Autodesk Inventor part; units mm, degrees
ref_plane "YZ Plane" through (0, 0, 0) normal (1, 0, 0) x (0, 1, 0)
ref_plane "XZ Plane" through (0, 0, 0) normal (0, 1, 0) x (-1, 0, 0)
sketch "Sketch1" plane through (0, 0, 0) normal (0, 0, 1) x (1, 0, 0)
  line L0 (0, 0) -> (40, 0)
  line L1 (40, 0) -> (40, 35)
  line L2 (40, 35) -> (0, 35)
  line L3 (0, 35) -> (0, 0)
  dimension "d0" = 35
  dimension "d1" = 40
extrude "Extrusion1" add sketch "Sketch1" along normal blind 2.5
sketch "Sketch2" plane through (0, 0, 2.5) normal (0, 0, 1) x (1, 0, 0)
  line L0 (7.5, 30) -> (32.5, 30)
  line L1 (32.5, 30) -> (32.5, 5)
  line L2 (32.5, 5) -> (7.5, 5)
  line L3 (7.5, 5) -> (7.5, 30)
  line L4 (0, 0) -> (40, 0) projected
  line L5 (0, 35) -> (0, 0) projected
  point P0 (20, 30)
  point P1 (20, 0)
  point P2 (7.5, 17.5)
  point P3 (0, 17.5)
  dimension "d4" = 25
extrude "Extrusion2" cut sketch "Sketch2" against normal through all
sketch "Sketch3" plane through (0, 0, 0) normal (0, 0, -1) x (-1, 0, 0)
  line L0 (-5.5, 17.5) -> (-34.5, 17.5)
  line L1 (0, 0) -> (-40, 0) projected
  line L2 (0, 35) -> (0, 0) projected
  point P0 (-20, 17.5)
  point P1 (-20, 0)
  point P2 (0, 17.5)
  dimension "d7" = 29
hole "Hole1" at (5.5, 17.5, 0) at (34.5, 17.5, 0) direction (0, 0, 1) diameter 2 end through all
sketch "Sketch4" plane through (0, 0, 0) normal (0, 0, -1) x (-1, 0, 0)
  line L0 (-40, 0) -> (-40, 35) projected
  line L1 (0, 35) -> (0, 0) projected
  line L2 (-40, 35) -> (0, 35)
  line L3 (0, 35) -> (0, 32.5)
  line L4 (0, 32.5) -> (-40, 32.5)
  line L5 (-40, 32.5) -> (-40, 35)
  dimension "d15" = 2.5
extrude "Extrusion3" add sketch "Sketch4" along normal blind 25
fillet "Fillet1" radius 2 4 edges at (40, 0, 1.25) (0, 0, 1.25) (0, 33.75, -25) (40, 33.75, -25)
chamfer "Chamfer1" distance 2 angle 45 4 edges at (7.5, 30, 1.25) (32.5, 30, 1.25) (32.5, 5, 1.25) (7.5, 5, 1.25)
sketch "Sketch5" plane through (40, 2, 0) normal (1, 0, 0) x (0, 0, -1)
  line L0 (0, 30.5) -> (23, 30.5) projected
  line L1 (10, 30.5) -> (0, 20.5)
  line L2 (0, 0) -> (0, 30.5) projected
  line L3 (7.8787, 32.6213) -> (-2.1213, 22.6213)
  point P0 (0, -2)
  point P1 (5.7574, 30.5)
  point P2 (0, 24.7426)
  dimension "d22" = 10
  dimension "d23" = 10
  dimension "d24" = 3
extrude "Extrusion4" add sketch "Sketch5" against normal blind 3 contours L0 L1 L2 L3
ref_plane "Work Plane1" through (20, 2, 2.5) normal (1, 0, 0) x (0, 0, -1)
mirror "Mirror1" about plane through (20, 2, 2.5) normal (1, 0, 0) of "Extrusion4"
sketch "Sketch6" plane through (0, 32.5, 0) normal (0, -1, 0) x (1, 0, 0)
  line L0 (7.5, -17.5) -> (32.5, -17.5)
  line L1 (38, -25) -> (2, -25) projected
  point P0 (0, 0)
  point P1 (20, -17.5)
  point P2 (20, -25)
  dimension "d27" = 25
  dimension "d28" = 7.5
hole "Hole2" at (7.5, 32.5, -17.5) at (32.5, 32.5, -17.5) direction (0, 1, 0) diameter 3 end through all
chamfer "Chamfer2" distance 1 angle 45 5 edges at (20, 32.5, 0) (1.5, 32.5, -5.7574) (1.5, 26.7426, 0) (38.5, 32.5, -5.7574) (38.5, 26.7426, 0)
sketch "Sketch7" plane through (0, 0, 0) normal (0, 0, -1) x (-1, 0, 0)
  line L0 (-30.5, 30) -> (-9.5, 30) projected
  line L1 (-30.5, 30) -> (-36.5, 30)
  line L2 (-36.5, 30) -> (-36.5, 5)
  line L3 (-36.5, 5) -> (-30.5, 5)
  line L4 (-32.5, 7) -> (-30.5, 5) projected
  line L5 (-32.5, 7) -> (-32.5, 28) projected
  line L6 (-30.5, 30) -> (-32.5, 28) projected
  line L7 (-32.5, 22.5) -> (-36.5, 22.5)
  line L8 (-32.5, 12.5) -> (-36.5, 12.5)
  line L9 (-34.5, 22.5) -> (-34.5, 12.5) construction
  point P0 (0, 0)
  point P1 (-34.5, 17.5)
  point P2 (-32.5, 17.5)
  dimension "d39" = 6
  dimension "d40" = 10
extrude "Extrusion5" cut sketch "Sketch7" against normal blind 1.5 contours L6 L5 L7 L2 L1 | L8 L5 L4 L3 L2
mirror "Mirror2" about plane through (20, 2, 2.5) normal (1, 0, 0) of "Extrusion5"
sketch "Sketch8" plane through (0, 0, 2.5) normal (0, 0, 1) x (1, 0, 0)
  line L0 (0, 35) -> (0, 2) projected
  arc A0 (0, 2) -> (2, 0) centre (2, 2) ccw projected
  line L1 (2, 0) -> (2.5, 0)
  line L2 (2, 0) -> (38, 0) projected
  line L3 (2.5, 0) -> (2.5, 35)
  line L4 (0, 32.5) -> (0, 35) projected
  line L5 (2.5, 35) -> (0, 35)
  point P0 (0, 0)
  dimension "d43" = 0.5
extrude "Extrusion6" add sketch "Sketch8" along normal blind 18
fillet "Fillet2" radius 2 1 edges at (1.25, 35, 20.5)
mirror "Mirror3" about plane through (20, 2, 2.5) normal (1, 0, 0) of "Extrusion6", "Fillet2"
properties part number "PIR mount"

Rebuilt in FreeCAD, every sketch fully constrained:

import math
import FreeCAD as App
import Part
import Sketcher

V = App.Vector


def edges_at(feature, points):
    """Names of the edges that pass closest to the given points."""
    edges = feature.Shape.Edges
    near = lambda p: min(range(len(edges)), key=lambda i: edges[i].distToShape(Part.Vertex(*p))[0])
    return sorted({f"Edge{near(p) + 1}" for p in points})


def add_polygon(sketch, points):
    """Adds a closed chain of lines whose ends are joined by coincident constraints."""
    first, n = sketch.GeometryCount, len(points)
    for a, b in zip(points, points[1:] + points[:1]):
        sketch.addGeometry(Part.LineSegment(App.Vector(*a, 0), App.Vector(*b, 0)), False)
    for i in range(n):
        sketch.addConstraint(Sketcher.Constraint("Coincident", first + i, 2, first + (i + 1) % n, 1))

doc = App.newDocument("Part")
body = doc.addObject("PartDesign::Body", "Body")

sketch1 = body.newObject("Sketcher::SketchObject", "Sketch")
sketch1.AttachmentSupport = (doc.getObject("XY_Plane"), [""])
sketch1.MapMode = "FlatFace"
add_polygon(sketch1, [(0, 35), (0, 0), (40, 0), (40, 35)])
sketch1.addConstraint(Sketcher.Constraint("Vertical", 0))
sketch1.addConstraint(Sketcher.Constraint("Horizontal", 1))
sketch1.addConstraint(Sketcher.Constraint("Vertical", 2))
sketch1.addConstraint(Sketcher.Constraint("Horizontal", 3))
sketch1.addConstraint(Sketcher.Constraint("Coincident", 0, 2, -1, 1))
sketch1.addConstraint(Sketcher.Constraint("DistanceX", 1, 1, 1, 2, 40.0))
sketch1.addConstraint(Sketcher.Constraint("DistanceY", 0, 2, 0, 1, 35.0))
pad1 = body.newObject("PartDesign::Pad", "Pad")
pad1.Profile = sketch1
pad1.Length = 2.5

sketch2 = body.newObject("Sketcher::SketchObject", "Sketch001")
sketch2.AttachmentSupport = (doc.getObject("XY_Plane"), [""])
sketch2.MapMode = "FlatFace"
sketch2.AttachmentOffset = App.Placement(V(0, 0, 2.5), App.Rotation())
add_polygon(sketch2, [(32, 30), (8, 30), (8, 5), (32, 5)])
sketch2.addConstraint(Sketcher.Constraint("Horizontal", 0))
sketch2.addConstraint(Sketcher.Constraint("Vertical", 1))
sketch2.addConstraint(Sketcher.Constraint("Horizontal", 2))
sketch2.addConstraint(Sketcher.Constraint("Vertical", 3))
sketch2.addConstraint(Sketcher.Constraint("Equal", 2, 1))
sketch2.addConstraint(Sketcher.Constraint("DistanceX", 0, 2, 0, 1, 25.0))
sketch2.addConstraint(Sketcher.Constraint("DistanceY", -1, 1, 0, 2, 30.0))
sketch2.addConstraint(Sketcher.Constraint("DistanceX", -1, 1, 0, 2, 7.5))
pocket1 = body.newObject("PartDesign::Pocket", "Pocket")
pocket1.Profile = sketch2
pocket1.Type = "ThroughAll"

sketch3 = body.newObject("Sketcher::SketchObject", "Sketch002")
sketch3.AttachmentSupport = (doc.getObject("XY_Plane"), [""])
sketch3.MapMode = "FlatFace"
sketch3.addGeometry(Part.Circle(V(5.5, 17.5, 0), V(0, 0, 1), 1), False)
sketch3.addGeometry(Part.Circle(V(34.5, 17.5, 0), V(0, 0, 1), 1), False)
sketch3.addConstraint(Sketcher.Constraint("Equal", 0, 1))
sketch3.addConstraint(Sketcher.Constraint("Horizontal", 0, 3, 1, 3))
sketch3.addConstraint(Sketcher.Constraint("Diameter", 0, 2.0))
sketch3.addConstraint(Sketcher.Constraint("DistanceX", 0, 3, 1, 3, 29.0))
sketch3.addConstraint(Sketcher.Constraint("DistanceX", -1, 1, 0, 3, 5.5))
sketch3.addConstraint(Sketcher.Constraint("DistanceY", -1, 1, 0, 3, 17.5))
doc.recompute()
hole = body.newObject("PartDesign::Hole", "Hole")
hole.Profile = sketch3
hole.ThreadType = "None"
hole.Diameter = 2
hole.DepthType = "ThroughAll"
hole.Reversed = True

sketch4 = body.newObject("Sketcher::SketchObject", "Sketch003")
sketch4.AttachmentSupport = (doc.getObject("XY_Plane"), [""])
sketch4.MapMode = "FlatFace"
add_polygon(sketch4, [(40, 35), (40, 32.5), (0, 32.5), (0, 35)])
sketch4.addConstraint(Sketcher.Constraint("Vertical", 0))
sketch4.addConstraint(Sketcher.Constraint("Horizontal", 1))
sketch4.addConstraint(Sketcher.Constraint("Vertical", 2))
sketch4.addConstraint(Sketcher.Constraint("Horizontal", 3))
sketch4.addConstraint(Sketcher.Constraint("PointOnObject", 1, 2, -2))
sketch4.addConstraint(Sketcher.Constraint("DistanceY", 0, 2, 0, 1, 2.5))
sketch4.addConstraint(Sketcher.Constraint("DistanceX", 1, 2, 1, 1, 40.0))
sketch4.addConstraint(Sketcher.Constraint("DistanceY", -1, 1, 2, 2, 35.0))
pad2 = body.newObject("PartDesign::Pad", "Pad001")
pad2.Profile = sketch4
pad2.Length = 25
pad2.Reversed = True
doc.recompute()

fillet = body.newObject("PartDesign::Fillet", "Fillet")
fillet.Base = (pad2, edges_at(pad2, [
    (40, 0, 1.25),
    (0, 0, 1.25),
    (0, 33.75, -25),
    (40, 33.75, -25),
]))
fillet.Radius = 2
doc.recompute()

chamfer = body.newObject("PartDesign::Chamfer", "Chamfer")
chamfer.Base = (fillet, edges_at(fillet, [
    (7.5, 30, 1.25),
    (32.5, 30, 1.25),
    (32.5, 5, 1.25),
    (7.5, 5, 1.25),
]))
chamfer.Size = 2

sketch5 = body.newObject("Sketcher::SketchObject", "Sketch004")
sketch5.AttachmentSupport = (doc.getObject("YZ_Plane"), [""])
sketch5.MapMode = "FlatFace"
sketch5.AttachmentOffset = App.Placement(V(0, 0, 40), App.Rotation())
add_polygon(sketch5, [(32.5, -10), (32.5, -5.8), (26.7, 0), (22.5, 0)])
sketch5.addConstraint(Sketcher.Constraint("Vertical", 0))
sketch5.addConstraint(Sketcher.Constraint("Horizontal", 2))
sketch5.addConstraint(Sketcher.Constraint("PointOnObject", 1, 2, -1))
sketch5.addConstraint(Sketcher.Constraint("Parallel", 1, 3))
sketch5.addConstraint(Sketcher.Constraint("Equal", 2, 0))
sketch5.addConstraint(Sketcher.Constraint("DistanceY", 3, 2, -1, 1, 10.0))
sketch5.addConstraint(Sketcher.Constraint("DistanceX", -1, 1, 0, 2, 32.5))
sketch5.addConstraint(Sketcher.Constraint("DistanceX", 2, 2, 2, 1, 4.2426))
pad3 = body.newObject("PartDesign::Pad", "Pad002")
pad3.Profile = sketch5
pad3.Length = 3
pad3.Reversed = True
doc.recompute()

datumplane = body.newObject("PartDesign::Plane", "DatumPlane")
datumplane.AttachmentSupport = (doc.getObject("YZ_Plane"), [""])
datumplane.MapMode = "FlatFace"
datumplane.AttachmentOffset = App.Placement(V(0, 0, 20), App.Rotation())
mirrored = body.newObject("PartDesign::Mirrored", "Mirrored")
mirrored.Originals = [pad3]
mirrored.MirrorPlane = (datumplane, [""])
body.Tip = mirrored

sketch6 = body.newObject("Sketcher::SketchObject", "Sketch005")
sketch6.AttachmentSupport = (doc.getObject("XZ_Plane"), [""])
sketch6.MapMode = "FlatFace"
sketch6.AttachmentOffset = App.Placement(V(0, 0, -32.5), App.Rotation())
sketch6.addGeometry(Part.Circle(V(7.5, -17.5, 0), V(0, 0, 1), 1.5), False)
sketch6.addGeometry(Part.Circle(V(32.5, -17.5, 0), V(0, 0, 1), 1.5), False)
sketch6.addConstraint(Sketcher.Constraint("Equal", 0, 1))
sketch6.addConstraint(Sketcher.Constraint("Horizontal", 0, 3, 1, 3))
sketch6.addConstraint(Sketcher.Constraint("Diameter", 0, 3.0))
sketch6.addConstraint(Sketcher.Constraint("DistanceX", 0, 3, 1, 3, 25.0))
sketch6.addConstraint(Sketcher.Constraint("DistanceX", -1, 1, 0, 3, 7.5))
sketch6.addConstraint(Sketcher.Constraint("DistanceY", 0, 3, -1, 1, 17.5))
doc.recompute()
hole2 = body.newObject("PartDesign::Hole", "Hole001")
hole2.Profile = sketch6
hole2.ThreadType = "None"
hole2.Diameter = 3
hole2.DepthType = "ThroughAll"
doc.recompute()

chamfer2 = body.newObject("PartDesign::Chamfer", "Chamfer001")
chamfer2.Base = (hole2, edges_at(hole2, [
    (20, 32.5, 0),
    (1.5, 32.5, -5.757),
    (1.5, 26.743, 0),
    (38.5, 32.5, -5.757),
    (38.5, 26.743, 0),
]))
chamfer2.Size = 1

sketch7 = body.newObject("Sketcher::SketchObject", "Sketch006")
sketch7.AttachmentSupport = (doc.getObject("XY_Plane"), [""])
sketch7.MapMode = "FlatFace"
add_polygon(sketch7, [(32.5, 28), (30.5, 30), (36.5, 30), (36.5, 22.5), (32.5, 22.5)])
add_polygon(sketch7, [(32.5, 12.5), (36.5, 12.5), (36.5, 5), (30.5, 5), (32.5, 7)])
sketch7.addConstraint(Sketcher.Constraint("Horizontal", 1))
sketch7.addConstraint(Sketcher.Constraint("Vertical", 2))
sketch7.addConstraint(Sketcher.Constraint("Horizontal", 3))
sketch7.addConstraint(Sketcher.Constraint("Vertical", 4))
sketch7.addConstraint(Sketcher.Constraint("Horizontal", 5))
sketch7.addConstraint(Sketcher.Constraint("Vertical", 6))
sketch7.addConstraint(Sketcher.Constraint("Horizontal", 7))
sketch7.addConstraint(Sketcher.Constraint("Vertical", 9))
sketch7.addConstraint(Sketcher.Constraint("Perpendicular", 0, 8))
sketch7.addConstraint(Sketcher.Constraint("Vertical", 2, 2, 5, 2))
sketch7.addConstraint(Sketcher.Constraint("Vertical", 0, 2, 7, 2))
sketch7.addConstraint(Sketcher.Constraint("Vertical", 4, 2, 8, 2))
sketch7.addConstraint(Sketcher.Constraint("Equal", 2, 6))
sketch7.addConstraint(Sketcher.Constraint("Equal", 4, 9))
sketch7.addConstraint(Sketcher.Constraint("DistanceX", 1, 1, 1, 2, 6.0))
sketch7.addConstraint(Sketcher.Constraint("DistanceY", 5, 2, 2, 2, 10.0))
sketch7.addConstraint(Sketcher.Constraint("DistanceX", 3, 2, 3, 1, 4.0))
sketch7.addConstraint(Sketcher.Constraint("DistanceY", 2, 2, 2, 1, 7.5))
sketch7.addConstraint(Sketcher.Constraint("DistanceY", -1, 1, 0, 2, 30.0))
sketch7.addConstraint(Sketcher.Constraint("DistanceX", -1, 1, 0, 2, 30.5))
pocket2 = body.newObject("PartDesign::Pocket", "Pocket001")
pocket2.Profile = sketch7
pocket2.Length = 1.5
pocket2.Reversed = True
doc.recompute()

datumplane2 = body.newObject("PartDesign::Plane", "DatumPlane001")
datumplane2.AttachmentSupport = (doc.getObject("YZ_Plane"), [""])
datumplane2.MapMode = "FlatFace"
datumplane2.AttachmentOffset = App.Placement(V(0, 0, 20), App.Rotation())
mirrored2 = body.newObject("PartDesign::Mirrored", "Mirrored001")
mirrored2.Originals = [pocket2]
mirrored2.MirrorPlane = (datumplane2, [""])
body.Tip = mirrored2

sketch8 = body.newObject("Sketcher::SketchObject", "Sketch007")
sketch8.AttachmentSupport = (doc.getObject("XY_Plane"), [""])
sketch8.MapMode = "FlatFace"
sketch8.AttachmentOffset = App.Placement(V(0, 0, 2.5), App.Rotation())
sketch8.addGeometry(Part.LineSegment(V(2.5, 35, 0), V(0, 35, 0)), False)
sketch8.addGeometry(Part.LineSegment(V(0, 35, 0), V(0, 2, 0)), False)
sketch8.addGeometry(Part.ArcOfCircle(Part.Circle(V(2, 2, 0), V(0, 0, 1), 2), math.radians(180), math.radians(270)), False)
sketch8.addGeometry(Part.LineSegment(V(2, 0, 0), V(2.5, 0, 0)), False)
sketch8.addGeometry(Part.LineSegment(V(2.5, 0, 0), V(2.5, 35, 0)), False)
sketch8.addConstraint(Sketcher.Constraint("Coincident", 0, 2, 1, 1))
sketch8.addConstraint(Sketcher.Constraint("Tangent", 1, 2, 2, 1))
sketch8.addConstraint(Sketcher.Constraint("Tangent", 2, 2, 3, 1))
sketch8.addConstraint(Sketcher.Constraint("Coincident", 3, 2, 4, 1))
sketch8.addConstraint(Sketcher.Constraint("Coincident", 4, 2, 0, 1))
sketch8.addConstraint(Sketcher.Constraint("Horizontal", 0))
sketch8.addConstraint(Sketcher.Constraint("Vertical", 1))
sketch8.addConstraint(Sketcher.Constraint("Horizontal", 3))
sketch8.addConstraint(Sketcher.Constraint("Vertical", 4))
sketch8.addConstraint(Sketcher.Constraint("PointOnObject", 0, 2, -2))
sketch8.addConstraint(Sketcher.Constraint("PointOnObject", 2, 2, -1))
sketch8.addConstraint(Sketcher.Constraint("DistanceX", 3, 1, 3, 2, 0.5))
sketch8.addConstraint(Sketcher.Constraint("Radius", 2, 2.0))
sketch8.addConstraint(Sketcher.Constraint("DistanceY", 1, 2, 1, 1, 33.0))
pad4 = body.newObject("PartDesign::Pad", "Pad003")
pad4.Profile = sketch8
pad4.Length = 18
doc.recompute()

fillet2 = body.newObject("PartDesign::Fillet", "Fillet001")
fillet2.Base = (pad4, edges_at(pad4, [(1.25, 35, 20.5)]))
fillet2.Radius = 2
doc.recompute()

datumplane3 = body.newObject("PartDesign::Plane", "DatumPlane002")
datumplane3.AttachmentSupport = (doc.getObject("YZ_Plane"), [""])
datumplane3.MapMode = "FlatFace"
datumplane3.AttachmentOffset = App.Placement(V(0, 0, 20), App.Rotation())
mirrored3 = body.newObject("PartDesign::Mirrored", "Mirrored002")
mirrored3.Originals = [pad4, fillet2]
mirrored3.MirrorPlane = (datumplane3, [""])
body.Tip = mirrored3

doc.recompute()
